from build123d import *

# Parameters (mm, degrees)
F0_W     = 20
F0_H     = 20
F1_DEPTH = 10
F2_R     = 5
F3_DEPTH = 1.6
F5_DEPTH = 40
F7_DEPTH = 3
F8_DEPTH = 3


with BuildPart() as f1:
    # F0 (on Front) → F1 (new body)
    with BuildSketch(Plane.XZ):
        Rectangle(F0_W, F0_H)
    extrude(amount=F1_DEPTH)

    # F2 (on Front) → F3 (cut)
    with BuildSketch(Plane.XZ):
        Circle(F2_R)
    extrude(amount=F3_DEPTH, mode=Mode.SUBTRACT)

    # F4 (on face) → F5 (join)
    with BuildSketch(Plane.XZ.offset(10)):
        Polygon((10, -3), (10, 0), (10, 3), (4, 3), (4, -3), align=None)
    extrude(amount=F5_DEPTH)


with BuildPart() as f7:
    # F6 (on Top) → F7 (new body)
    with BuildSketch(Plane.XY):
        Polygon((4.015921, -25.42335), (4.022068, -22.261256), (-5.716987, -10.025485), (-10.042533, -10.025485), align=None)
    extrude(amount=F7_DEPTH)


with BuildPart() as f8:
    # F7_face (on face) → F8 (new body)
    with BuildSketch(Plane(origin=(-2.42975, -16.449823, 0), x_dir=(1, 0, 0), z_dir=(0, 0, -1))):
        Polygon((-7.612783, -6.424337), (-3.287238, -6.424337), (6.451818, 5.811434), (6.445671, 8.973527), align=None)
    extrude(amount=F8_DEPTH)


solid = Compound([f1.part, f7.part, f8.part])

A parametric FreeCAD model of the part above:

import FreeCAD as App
import Part
import Sketcher
from FreeCAD import Vector
Q = App.Units.Quantity

doc = App.newDocument("Part")
params = doc.addObject("Spreadsheet::Sheet", "Params")
for row, (alias, value) in enumerate([
    ("sketch1_width", "20 mm"),
    ("pad1_length", "10 mm"),
    ("sketch2_diameter", "10 mm"),
    ("pocket1_length", "1.6 mm"),
    ("sketch3_width", "6 mm"),
    ("pad2_length", "40 mm"),
    ("pad3_length", "3 mm"),
    ("pad4_length", "3 mm"),
], start=1):
    params.set(f"A{row}", alias)
    params.set(f"B{row}", "=" + value)
    params.setAlias(f"B{row}", alias)

body = doc.addObject("PartDesign::Body", "Body")

# Sketch on XZ plane
sketch1 = body.newObject("Sketcher::SketchObject", "Sketch")
sketch1.AttachmentSupport = (doc.getObject("XZ_Plane"), [""])
sketch1.MapMode = "FlatFace"
sketch1.addGeometry(Part.LineSegment(Vector(-10, 10, 0), Vector(-10, -10, 0)), False)
sketch1.addGeometry(Part.LineSegment(Vector(-10, -10, 0), Vector(10, -10, 0)), False)
sketch1.addGeometry(Part.LineSegment(Vector(10, -10, 0), Vector(10, 10, 0)), False)
sketch1.addGeometry(Part.LineSegment(Vector(10, 10, 0), Vector(-10, 10, 0)), False)
sketch1.addConstraint(Sketcher.Constraint("Coincident", 0, 2, 1, 1))
sketch1.addConstraint(Sketcher.Constraint("Coincident", 1, 2, 2, 1))
sketch1.addConstraint(Sketcher.Constraint("Coincident", 2, 2, 3, 1))
sketch1.addConstraint(Sketcher.Constraint("Coincident", 3, 2, 0, 1))
sketch1.addConstraint(Sketcher.Constraint("Vertical", 0))
sketch1.addConstraint(Sketcher.Constraint("Horizontal", 1))
sketch1.addConstraint(Sketcher.Constraint("Vertical", 2))
sketch1.addConstraint(Sketcher.Constraint("Horizontal", 3))
sketch1.addConstraint(Sketcher.Constraint("Symmetric", 0, 2, 2, 2, -1, 1))
sketch1.addConstraint(Sketcher.Constraint("Equal", 3, 0))
sketch1.addConstraint(Sketcher.Constraint("DistanceX", 1, 1, 1, 2, Q("20 mm")))
sketch1.setExpression("Constraints[10]", "Params.sketch1_width")
pad1 = body.newObject("PartDesign::Pad", "Pad")
pad1.Profile = sketch1
pad1.setExpression("Length", "Params.pad1_length")

# Sketch on XZ plane
sketch2 = body.newObject("Sketcher::SketchObject", "Sketch001")
sketch2.AttachmentSupport = (doc.getObject("XZ_Plane"), [""])
sketch2.MapMode = "FlatFace"
sketch2.addGeometry(Part.Circle(Vector(0, 0, 0), Vector(0, 0, 1), 5), False)
sketch2.addConstraint(Sketcher.Constraint("Coincident", 0, 3, -1, 1))
sketch2.addConstraint(Sketcher.Constraint("Diameter", 0, Q("10 mm")))
sketch2.setExpression("Constraints[1]", "Params.sketch2_diameter")
pocket1 = body.newObject("PartDesign::Pocket", "Pocket")
pocket1.Profile = sketch2
pocket1.setExpression("Length", "Params.pocket1_length")
pocket1.Reversed = True

# Sketch on XZ plane
sketch3 = body.newObject("Sketcher::SketchObject", "Sketch002")
sketch3.AttachmentSupport = (doc.getObject("XZ_Plane"), [""])
sketch3.MapMode = "FlatFace"
sketch3.AttachmentOffset = App.Placement(Vector(0, 0, 10), App.Rotation())
sketch3.addGeometry(Part.LineSegment(Vector(10, -3, 0), Vector(10, 3, 0)), False)
sketch3.addGeometry(Part.LineSegment(Vector(10, 3, 0), Vector(4, 3, 0)), False)
sketch3.addGeometry(Part.LineSegment(Vector(4, 3, 0), Vector(4, -3, 0)), False)
sketch3.addGeometry(Part.LineSegment(Vector(4, -3, 0), Vector(10, -3, 0)), False)
sketch3.addConstraint(Sketcher.Constraint("Coincident", 0, 2, 1, 1))
sketch3.addConstraint(Sketcher.Constraint("Coincident", 1, 2, 2, 1))
sketch3.addConstraint(Sketcher.Constraint("Coincident", 2, 2, 3, 1))
sketch3.addConstraint(Sketcher.Constraint("Coincident", 3, 2, 0, 1))
sketch3.addConstraint(Sketcher.Constraint("Vertical", 0))
sketch3.addConstraint(Sketcher.Constraint("Horizontal", 1))
sketch3.addConstraint(Sketcher.Constraint("Vertical", 2))
sketch3.addConstraint(Sketcher.Constraint("Horizontal", 3))
sketch3.addConstraint(Sketcher.Constraint("Equal", 3, 0))
sketch3.addConstraint(Sketcher.Constraint("DistanceX", 1, 2, 1, 1, Q("6 mm")))
sketch3.addConstraint(Sketcher.Constraint("DistanceX", -1, 1, 0, 2, Q("10 mm")))
sketch3.addConstraint(Sketcher.Constraint("DistanceY", -1, 1, 0, 2, Q("3 mm")))
sketch3.setExpression("Constraints[9]", "Params.sketch3_width")
pad2 = body.newObject("PartDesign::Pad", "Pad001")
pad2.Profile = sketch3
pad2.setExpression("Length", "Params.pad2_length")
body2 = doc.addObject("PartDesign::Body", "Body001")

# Sketch on XY plane
sketch4 = body2.newObject("Sketcher::SketchObject", "Sketch003")
sketch4.AttachmentSupport = (doc.getObject("XY_Plane001"), [""])
sketch4.MapMode = "FlatFace"
sketch4.addGeometry(Part.LineSegment(Vector(4, -25.4, 0), Vector(4, -22.3, 0)), False)
sketch4.addGeometry(Part.LineSegment(Vector(4, -22.3, 0), Vector(-5.7, -10, 0)), False)
sketch4.addGeometry(Part.LineSegment(Vector(-5.7, -10, 0), Vector(-10, -10, 0)), False)
sketch4.addGeometry(Part.LineSegment(Vector(-10, -10, 0), Vector(4, -25.4, 0)), False)
sketch4.addConstraint(Sketcher.Constraint("Coincident", 0, 2, 1, 1))
sketch4.addConstraint(Sketcher.Constraint("Coincident", 1, 2, 2, 1))
sketch4.addConstraint(Sketcher.Constraint("Coincident", 2, 2, 3, 1))
sketch4.addConstraint(Sketcher.Constraint("Coincident", 3, 2, 0, 1))
sketch4.addConstraint(Sketcher.Constraint("Horizontal", 2))
sketch4.addConstraint(Sketcher.Constraint("Distance", 0, Q("3.1621 mm")))
sketch4.addConstraint(Sketcher.Constraint("DistanceX", 2, 2, 0, 2, Q("14.064601 mm")))
sketch4.addConstraint(Sketcher.Constraint("Distance", 1, Q("15.638519 mm")))
sketch4.addConstraint(Sketcher.Constraint("DistanceX", 2, 2, 2, 1, Q("4.325546 mm")))
sketch4.addConstraint(Sketcher.Constraint("DistanceX", -1, 1, 3, 2, Q("4.015921 mm")))
sketch4.addConstraint(Sketcher.Constraint("DistanceY", 3, 2, -1, 1, Q("25.42335 mm")))
sketch4.addConstraint(Sketcher.Constraint("Distance", 3, Q("20.850285 mm")))
pad3 = body2.newObject("PartDesign::Pad", "Pad002")
pad3.Profile = sketch4
pad3.setExpression("Length", "Params.pad3_length")
body3 = doc.addObject("PartDesign::Body", "Body002")

# Sketch on XY plane
sketch5 = body3.newObject("Sketcher::SketchObject", "Sketch004")
sketch5.AttachmentSupport = (doc.getObject("XY_Plane002"), [""])
sketch5.MapMode = "FlatFace"
sketch5.addGeometry(Part.LineSegment(Vector(-10, -10, 0), Vector(-5.7, -10, 0)), False)
sketch5.addGeometry(Part.LineSegment(Vector(-5.7, -10, 0), Vector(4, -22.3, 0)), False)
sketch5.addGeometry(Part.LineSegment(Vector(4, -22.3, 0), Vector(4, -25.4, 0)), False)
sketch5.addGeometry(Part.LineSegment(Vector(4, -25.4, 0), Vector(-10, -10, 0)), False)
sketch5.addConstraint(Sketcher.Constraint("Coincident", 0, 2, 1, 1))
sketch5.addConstraint(Sketcher.Constraint("Coincident", 1, 2, 2, 1))
sketch5.addConstraint(Sketcher.Constraint("Coincident", 2, 2, 3, 1))
sketch5.addConstraint(Sketcher.Constraint("Coincident", 3, 2, 0, 1))
sketch5.addConstraint(Sketcher.Constraint("Horizontal", 0))
sketch5.addConstraint(Sketcher.Constraint("Distance", 2, Q("3.162099 mm")))
sketch5.addConstraint(Sketcher.Constraint("DistanceX", 3, 2, 1, 2, Q("14.064601 mm")))
sketch5.addConstraint(Sketcher.Constraint("Distance", 1, Q("15.63852 mm")))
sketch5.addConstraint(Sketcher.Constraint("DistanceX", 0, 1, 0, 2, Q("4.325545 mm")))
sketch5.addConstraint(Sketcher.Constraint("DistanceX", -1, 1, 2, 2, Q("4.015921 mm")))
sketch5.addConstraint(Sketcher.Constraint("DistanceY", 2, 2, -1, 1, Q("25.42335 mm")))
sketch5.addConstraint(Sketcher.Constraint("DistanceX", 0, 2, 2, 2, Q("9.732909 mm")))
pad4 = body3.newObject("PartDesign::Pad", "Pad003")
pad4.Profile = sketch5
pad4.setExpression("Length", "Params.pad4_length")
pad4.Reversed = True

doc.recompute()
